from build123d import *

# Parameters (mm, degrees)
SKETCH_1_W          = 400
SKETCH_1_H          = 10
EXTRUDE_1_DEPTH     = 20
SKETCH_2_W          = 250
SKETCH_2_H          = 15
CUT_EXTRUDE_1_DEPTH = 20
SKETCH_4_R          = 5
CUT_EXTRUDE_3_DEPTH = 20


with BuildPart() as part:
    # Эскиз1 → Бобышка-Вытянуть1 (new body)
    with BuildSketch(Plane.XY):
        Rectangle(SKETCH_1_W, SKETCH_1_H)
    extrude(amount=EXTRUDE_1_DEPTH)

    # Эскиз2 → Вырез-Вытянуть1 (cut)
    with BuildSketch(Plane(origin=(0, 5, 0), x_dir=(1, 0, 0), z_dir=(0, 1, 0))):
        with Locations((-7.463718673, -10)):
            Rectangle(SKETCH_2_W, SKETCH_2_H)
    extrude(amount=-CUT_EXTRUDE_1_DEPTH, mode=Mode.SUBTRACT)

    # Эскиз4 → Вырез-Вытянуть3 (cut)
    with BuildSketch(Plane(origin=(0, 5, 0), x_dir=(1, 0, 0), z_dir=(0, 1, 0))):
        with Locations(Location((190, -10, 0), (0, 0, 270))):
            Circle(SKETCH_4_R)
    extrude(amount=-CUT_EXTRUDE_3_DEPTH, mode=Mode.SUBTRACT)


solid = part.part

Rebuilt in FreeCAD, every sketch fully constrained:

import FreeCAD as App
import Part
import Sketcher

V = App.Vector


def add_polygon(sketch, points):
    """Adds a closed chain of lines whose ends are joined by coincident constraints."""
    first, n = sketch.GeometryCount, len(points)
    for a, b in zip(points, points[1:] + points[:1]):
        sketch.addGeometry(Part.LineSegment(App.Vector(*a, 0), App.Vector(*b, 0)), False)
    for i in range(n):
        sketch.addConstraint(Sketcher.Constraint("Coincident", first + i, 2, first + (i + 1) % n, 1))

doc = App.newDocument("Part")
params = doc.addObject("Spreadsheet::Sheet", "Params")
for row, (alias, value) in enumerate([
    ("sketch1_width", "400 mm"),
    ("sketch1_height", "10 mm"),
    ("pad1_length", "20 mm"),
    ("sketch2_width", "250 mm"),
    ("sketch2_height", "15 mm"),
    ("pocket1_length", "20 mm"),
    ("sketch3_diameter", "10 mm"),
    ("pocket2_length", "20 mm"),
], start=1):
    params.set(f"A{row}", alias)
    params.set(f"B{row}", "=" + value)
    params.setAlias(f"B{row}", alias)

body = doc.addObject("PartDesign::Body", "Body")

# Sketch on XY plane
sketch1 = doc.addObject("Sketcher::SketchObject", "Sketch")
body.addObject(sketch1)
sketch1.AttachmentSupport = (doc.XY_Plane, [""])
sketch1.MapMode = "FlatFace"
add_polygon(sketch1, [(-200, 5), (-200, -5), (200, -5), (200, 5)])  # lines 0-3
sketch1.addConstraint([
    Sketcher.Constraint("Vertical", 0),
    Sketcher.Constraint("Horizontal", 1),
    Sketcher.Constraint("Vertical", 2),
    Sketcher.Constraint("Horizontal", 3),
    Sketcher.Constraint("Symmetric", 0, 2, 2, 2, -1, 1),
    Sketcher.Constraint("DistanceX", 1, 1, 1, 2, 400.0),
    Sketcher.Constraint("DistanceY", 0, 2, 0, 1, 10.0),
])
sketch1.setExpression("Constraints[9]", "Params.sketch1_width")
sketch1.setExpression("Constraints[10]", "Params.sketch1_height")
pad1 = doc.addObject("PartDesign::Pad", "Pad")
body.addObject(pad1)
pad1.Profile = sketch1
pad1.setExpression("Length", "Params.pad1_length")

# Sketch on XZ plane
sketch2 = doc.addObject("Sketcher::SketchObject", "Sketch001")
body.addObject(sketch2)
sketch2.AttachmentSupport = (doc.XZ_Plane, [""])
sketch2.MapMode = "FlatFace"
sketch2.AttachmentOffset = App.Placement(V(0, 0, -5), App.Rotation())
add_polygon(sketch2, [(-132, 2), (-132, 18), (118, 18), (118, 2)])  # lines 0-3
sketch2.addConstraint([
    Sketcher.Constraint("Vertical", 0),
    Sketcher.Constraint("Horizontal", 1),
    Sketcher.Constraint("Vertical", 2),
    Sketcher.Constraint("Horizontal", 3),
    Sketcher.Constraint("DistanceX", 1, 1, 1, 2, 250.0),
    Sketcher.Constraint("DistanceY", 0, 1, 0, 2, 15.0),
    Sketcher.Constraint("DistanceY", -1, 1, 0, 2, 17.5),
    Sketcher.Constraint("DistanceX", 0, 2, -1, 1, 132.463719),
])
sketch2.setExpression("Constraints[8]", "Params.sketch2_width")
sketch2.setExpression("Constraints[9]", "Params.sketch2_height")
pocket1 = doc.addObject("PartDesign::Pocket", "Pocket")
body.addObject(pocket1)
pocket1.Profile = sketch2
pocket1.setExpression("Length", "Params.pocket1_length")
pocket1.Reversed = True

# Sketch on XZ plane
sketch3 = doc.addObject("Sketcher::SketchObject", "Sketch002")
body.addObject(sketch3)
sketch3.AttachmentSupport = (doc.XZ_Plane, [""])
sketch3.MapMode = "FlatFace"
sketch3.AttachmentOffset = App.Placement(V(0, 0, -5), App.Rotation())
sketch3.addGeometry(Part.Circle(V(190, 10, 0), V(0, 0, 1), 5), False)
sketch3.addConstraint([
    Sketcher.Constraint("Diameter", 0, 10.0),
    Sketcher.Constraint("DistanceX", -1, 1, 0, 3, 190.0),
    Sketcher.Constraint("DistanceY", -1, 1, 0, 3, 10.0),
])
sketch3.setExpression("Constraints[0]", "Params.sketch3_diameter")
pocket2 = doc.addObject("PartDesign::Pocket", "Pocket001")
body.addObject(pocket2)
pocket2.Profile = sketch3
pocket2.setExpression("Length", "Params.pocket2_length")
pocket2.Reversed = True

doc.recompute()
